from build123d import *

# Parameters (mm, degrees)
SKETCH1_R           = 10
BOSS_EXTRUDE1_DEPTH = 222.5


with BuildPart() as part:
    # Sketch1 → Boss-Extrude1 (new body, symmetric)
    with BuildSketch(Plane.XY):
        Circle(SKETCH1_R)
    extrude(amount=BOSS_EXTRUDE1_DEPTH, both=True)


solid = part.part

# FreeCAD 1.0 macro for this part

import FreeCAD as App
import Part
import Sketcher

V = App.Vector

doc = App.newDocument("Part")
body = doc.addObject("PartDesign::Body", "Body")

sketch1 = body.newObject("Sketcher::SketchObject", "Sketch")
sketch1.AttachmentSupport = (doc.getObject("XY_Plane"), [""])
sketch1.MapMode = "FlatFace"
sketch1.addGeometry(Part.Circle(V(0, 0, 0), V(0, 0, 1), 10), False)
sketch1.addConstraint(Sketcher.Constraint("Coincident", 0, 3, -1, 1))
sketch1.addConstraint(Sketcher.Constraint("Diameter", 0, 20.0))
pad1 = body.newObject("PartDesign::Pad", "Pad")
pad1.Profile = sketch1
pad1.Length = 445
pad1.Midplane = True

doc.recompute()
